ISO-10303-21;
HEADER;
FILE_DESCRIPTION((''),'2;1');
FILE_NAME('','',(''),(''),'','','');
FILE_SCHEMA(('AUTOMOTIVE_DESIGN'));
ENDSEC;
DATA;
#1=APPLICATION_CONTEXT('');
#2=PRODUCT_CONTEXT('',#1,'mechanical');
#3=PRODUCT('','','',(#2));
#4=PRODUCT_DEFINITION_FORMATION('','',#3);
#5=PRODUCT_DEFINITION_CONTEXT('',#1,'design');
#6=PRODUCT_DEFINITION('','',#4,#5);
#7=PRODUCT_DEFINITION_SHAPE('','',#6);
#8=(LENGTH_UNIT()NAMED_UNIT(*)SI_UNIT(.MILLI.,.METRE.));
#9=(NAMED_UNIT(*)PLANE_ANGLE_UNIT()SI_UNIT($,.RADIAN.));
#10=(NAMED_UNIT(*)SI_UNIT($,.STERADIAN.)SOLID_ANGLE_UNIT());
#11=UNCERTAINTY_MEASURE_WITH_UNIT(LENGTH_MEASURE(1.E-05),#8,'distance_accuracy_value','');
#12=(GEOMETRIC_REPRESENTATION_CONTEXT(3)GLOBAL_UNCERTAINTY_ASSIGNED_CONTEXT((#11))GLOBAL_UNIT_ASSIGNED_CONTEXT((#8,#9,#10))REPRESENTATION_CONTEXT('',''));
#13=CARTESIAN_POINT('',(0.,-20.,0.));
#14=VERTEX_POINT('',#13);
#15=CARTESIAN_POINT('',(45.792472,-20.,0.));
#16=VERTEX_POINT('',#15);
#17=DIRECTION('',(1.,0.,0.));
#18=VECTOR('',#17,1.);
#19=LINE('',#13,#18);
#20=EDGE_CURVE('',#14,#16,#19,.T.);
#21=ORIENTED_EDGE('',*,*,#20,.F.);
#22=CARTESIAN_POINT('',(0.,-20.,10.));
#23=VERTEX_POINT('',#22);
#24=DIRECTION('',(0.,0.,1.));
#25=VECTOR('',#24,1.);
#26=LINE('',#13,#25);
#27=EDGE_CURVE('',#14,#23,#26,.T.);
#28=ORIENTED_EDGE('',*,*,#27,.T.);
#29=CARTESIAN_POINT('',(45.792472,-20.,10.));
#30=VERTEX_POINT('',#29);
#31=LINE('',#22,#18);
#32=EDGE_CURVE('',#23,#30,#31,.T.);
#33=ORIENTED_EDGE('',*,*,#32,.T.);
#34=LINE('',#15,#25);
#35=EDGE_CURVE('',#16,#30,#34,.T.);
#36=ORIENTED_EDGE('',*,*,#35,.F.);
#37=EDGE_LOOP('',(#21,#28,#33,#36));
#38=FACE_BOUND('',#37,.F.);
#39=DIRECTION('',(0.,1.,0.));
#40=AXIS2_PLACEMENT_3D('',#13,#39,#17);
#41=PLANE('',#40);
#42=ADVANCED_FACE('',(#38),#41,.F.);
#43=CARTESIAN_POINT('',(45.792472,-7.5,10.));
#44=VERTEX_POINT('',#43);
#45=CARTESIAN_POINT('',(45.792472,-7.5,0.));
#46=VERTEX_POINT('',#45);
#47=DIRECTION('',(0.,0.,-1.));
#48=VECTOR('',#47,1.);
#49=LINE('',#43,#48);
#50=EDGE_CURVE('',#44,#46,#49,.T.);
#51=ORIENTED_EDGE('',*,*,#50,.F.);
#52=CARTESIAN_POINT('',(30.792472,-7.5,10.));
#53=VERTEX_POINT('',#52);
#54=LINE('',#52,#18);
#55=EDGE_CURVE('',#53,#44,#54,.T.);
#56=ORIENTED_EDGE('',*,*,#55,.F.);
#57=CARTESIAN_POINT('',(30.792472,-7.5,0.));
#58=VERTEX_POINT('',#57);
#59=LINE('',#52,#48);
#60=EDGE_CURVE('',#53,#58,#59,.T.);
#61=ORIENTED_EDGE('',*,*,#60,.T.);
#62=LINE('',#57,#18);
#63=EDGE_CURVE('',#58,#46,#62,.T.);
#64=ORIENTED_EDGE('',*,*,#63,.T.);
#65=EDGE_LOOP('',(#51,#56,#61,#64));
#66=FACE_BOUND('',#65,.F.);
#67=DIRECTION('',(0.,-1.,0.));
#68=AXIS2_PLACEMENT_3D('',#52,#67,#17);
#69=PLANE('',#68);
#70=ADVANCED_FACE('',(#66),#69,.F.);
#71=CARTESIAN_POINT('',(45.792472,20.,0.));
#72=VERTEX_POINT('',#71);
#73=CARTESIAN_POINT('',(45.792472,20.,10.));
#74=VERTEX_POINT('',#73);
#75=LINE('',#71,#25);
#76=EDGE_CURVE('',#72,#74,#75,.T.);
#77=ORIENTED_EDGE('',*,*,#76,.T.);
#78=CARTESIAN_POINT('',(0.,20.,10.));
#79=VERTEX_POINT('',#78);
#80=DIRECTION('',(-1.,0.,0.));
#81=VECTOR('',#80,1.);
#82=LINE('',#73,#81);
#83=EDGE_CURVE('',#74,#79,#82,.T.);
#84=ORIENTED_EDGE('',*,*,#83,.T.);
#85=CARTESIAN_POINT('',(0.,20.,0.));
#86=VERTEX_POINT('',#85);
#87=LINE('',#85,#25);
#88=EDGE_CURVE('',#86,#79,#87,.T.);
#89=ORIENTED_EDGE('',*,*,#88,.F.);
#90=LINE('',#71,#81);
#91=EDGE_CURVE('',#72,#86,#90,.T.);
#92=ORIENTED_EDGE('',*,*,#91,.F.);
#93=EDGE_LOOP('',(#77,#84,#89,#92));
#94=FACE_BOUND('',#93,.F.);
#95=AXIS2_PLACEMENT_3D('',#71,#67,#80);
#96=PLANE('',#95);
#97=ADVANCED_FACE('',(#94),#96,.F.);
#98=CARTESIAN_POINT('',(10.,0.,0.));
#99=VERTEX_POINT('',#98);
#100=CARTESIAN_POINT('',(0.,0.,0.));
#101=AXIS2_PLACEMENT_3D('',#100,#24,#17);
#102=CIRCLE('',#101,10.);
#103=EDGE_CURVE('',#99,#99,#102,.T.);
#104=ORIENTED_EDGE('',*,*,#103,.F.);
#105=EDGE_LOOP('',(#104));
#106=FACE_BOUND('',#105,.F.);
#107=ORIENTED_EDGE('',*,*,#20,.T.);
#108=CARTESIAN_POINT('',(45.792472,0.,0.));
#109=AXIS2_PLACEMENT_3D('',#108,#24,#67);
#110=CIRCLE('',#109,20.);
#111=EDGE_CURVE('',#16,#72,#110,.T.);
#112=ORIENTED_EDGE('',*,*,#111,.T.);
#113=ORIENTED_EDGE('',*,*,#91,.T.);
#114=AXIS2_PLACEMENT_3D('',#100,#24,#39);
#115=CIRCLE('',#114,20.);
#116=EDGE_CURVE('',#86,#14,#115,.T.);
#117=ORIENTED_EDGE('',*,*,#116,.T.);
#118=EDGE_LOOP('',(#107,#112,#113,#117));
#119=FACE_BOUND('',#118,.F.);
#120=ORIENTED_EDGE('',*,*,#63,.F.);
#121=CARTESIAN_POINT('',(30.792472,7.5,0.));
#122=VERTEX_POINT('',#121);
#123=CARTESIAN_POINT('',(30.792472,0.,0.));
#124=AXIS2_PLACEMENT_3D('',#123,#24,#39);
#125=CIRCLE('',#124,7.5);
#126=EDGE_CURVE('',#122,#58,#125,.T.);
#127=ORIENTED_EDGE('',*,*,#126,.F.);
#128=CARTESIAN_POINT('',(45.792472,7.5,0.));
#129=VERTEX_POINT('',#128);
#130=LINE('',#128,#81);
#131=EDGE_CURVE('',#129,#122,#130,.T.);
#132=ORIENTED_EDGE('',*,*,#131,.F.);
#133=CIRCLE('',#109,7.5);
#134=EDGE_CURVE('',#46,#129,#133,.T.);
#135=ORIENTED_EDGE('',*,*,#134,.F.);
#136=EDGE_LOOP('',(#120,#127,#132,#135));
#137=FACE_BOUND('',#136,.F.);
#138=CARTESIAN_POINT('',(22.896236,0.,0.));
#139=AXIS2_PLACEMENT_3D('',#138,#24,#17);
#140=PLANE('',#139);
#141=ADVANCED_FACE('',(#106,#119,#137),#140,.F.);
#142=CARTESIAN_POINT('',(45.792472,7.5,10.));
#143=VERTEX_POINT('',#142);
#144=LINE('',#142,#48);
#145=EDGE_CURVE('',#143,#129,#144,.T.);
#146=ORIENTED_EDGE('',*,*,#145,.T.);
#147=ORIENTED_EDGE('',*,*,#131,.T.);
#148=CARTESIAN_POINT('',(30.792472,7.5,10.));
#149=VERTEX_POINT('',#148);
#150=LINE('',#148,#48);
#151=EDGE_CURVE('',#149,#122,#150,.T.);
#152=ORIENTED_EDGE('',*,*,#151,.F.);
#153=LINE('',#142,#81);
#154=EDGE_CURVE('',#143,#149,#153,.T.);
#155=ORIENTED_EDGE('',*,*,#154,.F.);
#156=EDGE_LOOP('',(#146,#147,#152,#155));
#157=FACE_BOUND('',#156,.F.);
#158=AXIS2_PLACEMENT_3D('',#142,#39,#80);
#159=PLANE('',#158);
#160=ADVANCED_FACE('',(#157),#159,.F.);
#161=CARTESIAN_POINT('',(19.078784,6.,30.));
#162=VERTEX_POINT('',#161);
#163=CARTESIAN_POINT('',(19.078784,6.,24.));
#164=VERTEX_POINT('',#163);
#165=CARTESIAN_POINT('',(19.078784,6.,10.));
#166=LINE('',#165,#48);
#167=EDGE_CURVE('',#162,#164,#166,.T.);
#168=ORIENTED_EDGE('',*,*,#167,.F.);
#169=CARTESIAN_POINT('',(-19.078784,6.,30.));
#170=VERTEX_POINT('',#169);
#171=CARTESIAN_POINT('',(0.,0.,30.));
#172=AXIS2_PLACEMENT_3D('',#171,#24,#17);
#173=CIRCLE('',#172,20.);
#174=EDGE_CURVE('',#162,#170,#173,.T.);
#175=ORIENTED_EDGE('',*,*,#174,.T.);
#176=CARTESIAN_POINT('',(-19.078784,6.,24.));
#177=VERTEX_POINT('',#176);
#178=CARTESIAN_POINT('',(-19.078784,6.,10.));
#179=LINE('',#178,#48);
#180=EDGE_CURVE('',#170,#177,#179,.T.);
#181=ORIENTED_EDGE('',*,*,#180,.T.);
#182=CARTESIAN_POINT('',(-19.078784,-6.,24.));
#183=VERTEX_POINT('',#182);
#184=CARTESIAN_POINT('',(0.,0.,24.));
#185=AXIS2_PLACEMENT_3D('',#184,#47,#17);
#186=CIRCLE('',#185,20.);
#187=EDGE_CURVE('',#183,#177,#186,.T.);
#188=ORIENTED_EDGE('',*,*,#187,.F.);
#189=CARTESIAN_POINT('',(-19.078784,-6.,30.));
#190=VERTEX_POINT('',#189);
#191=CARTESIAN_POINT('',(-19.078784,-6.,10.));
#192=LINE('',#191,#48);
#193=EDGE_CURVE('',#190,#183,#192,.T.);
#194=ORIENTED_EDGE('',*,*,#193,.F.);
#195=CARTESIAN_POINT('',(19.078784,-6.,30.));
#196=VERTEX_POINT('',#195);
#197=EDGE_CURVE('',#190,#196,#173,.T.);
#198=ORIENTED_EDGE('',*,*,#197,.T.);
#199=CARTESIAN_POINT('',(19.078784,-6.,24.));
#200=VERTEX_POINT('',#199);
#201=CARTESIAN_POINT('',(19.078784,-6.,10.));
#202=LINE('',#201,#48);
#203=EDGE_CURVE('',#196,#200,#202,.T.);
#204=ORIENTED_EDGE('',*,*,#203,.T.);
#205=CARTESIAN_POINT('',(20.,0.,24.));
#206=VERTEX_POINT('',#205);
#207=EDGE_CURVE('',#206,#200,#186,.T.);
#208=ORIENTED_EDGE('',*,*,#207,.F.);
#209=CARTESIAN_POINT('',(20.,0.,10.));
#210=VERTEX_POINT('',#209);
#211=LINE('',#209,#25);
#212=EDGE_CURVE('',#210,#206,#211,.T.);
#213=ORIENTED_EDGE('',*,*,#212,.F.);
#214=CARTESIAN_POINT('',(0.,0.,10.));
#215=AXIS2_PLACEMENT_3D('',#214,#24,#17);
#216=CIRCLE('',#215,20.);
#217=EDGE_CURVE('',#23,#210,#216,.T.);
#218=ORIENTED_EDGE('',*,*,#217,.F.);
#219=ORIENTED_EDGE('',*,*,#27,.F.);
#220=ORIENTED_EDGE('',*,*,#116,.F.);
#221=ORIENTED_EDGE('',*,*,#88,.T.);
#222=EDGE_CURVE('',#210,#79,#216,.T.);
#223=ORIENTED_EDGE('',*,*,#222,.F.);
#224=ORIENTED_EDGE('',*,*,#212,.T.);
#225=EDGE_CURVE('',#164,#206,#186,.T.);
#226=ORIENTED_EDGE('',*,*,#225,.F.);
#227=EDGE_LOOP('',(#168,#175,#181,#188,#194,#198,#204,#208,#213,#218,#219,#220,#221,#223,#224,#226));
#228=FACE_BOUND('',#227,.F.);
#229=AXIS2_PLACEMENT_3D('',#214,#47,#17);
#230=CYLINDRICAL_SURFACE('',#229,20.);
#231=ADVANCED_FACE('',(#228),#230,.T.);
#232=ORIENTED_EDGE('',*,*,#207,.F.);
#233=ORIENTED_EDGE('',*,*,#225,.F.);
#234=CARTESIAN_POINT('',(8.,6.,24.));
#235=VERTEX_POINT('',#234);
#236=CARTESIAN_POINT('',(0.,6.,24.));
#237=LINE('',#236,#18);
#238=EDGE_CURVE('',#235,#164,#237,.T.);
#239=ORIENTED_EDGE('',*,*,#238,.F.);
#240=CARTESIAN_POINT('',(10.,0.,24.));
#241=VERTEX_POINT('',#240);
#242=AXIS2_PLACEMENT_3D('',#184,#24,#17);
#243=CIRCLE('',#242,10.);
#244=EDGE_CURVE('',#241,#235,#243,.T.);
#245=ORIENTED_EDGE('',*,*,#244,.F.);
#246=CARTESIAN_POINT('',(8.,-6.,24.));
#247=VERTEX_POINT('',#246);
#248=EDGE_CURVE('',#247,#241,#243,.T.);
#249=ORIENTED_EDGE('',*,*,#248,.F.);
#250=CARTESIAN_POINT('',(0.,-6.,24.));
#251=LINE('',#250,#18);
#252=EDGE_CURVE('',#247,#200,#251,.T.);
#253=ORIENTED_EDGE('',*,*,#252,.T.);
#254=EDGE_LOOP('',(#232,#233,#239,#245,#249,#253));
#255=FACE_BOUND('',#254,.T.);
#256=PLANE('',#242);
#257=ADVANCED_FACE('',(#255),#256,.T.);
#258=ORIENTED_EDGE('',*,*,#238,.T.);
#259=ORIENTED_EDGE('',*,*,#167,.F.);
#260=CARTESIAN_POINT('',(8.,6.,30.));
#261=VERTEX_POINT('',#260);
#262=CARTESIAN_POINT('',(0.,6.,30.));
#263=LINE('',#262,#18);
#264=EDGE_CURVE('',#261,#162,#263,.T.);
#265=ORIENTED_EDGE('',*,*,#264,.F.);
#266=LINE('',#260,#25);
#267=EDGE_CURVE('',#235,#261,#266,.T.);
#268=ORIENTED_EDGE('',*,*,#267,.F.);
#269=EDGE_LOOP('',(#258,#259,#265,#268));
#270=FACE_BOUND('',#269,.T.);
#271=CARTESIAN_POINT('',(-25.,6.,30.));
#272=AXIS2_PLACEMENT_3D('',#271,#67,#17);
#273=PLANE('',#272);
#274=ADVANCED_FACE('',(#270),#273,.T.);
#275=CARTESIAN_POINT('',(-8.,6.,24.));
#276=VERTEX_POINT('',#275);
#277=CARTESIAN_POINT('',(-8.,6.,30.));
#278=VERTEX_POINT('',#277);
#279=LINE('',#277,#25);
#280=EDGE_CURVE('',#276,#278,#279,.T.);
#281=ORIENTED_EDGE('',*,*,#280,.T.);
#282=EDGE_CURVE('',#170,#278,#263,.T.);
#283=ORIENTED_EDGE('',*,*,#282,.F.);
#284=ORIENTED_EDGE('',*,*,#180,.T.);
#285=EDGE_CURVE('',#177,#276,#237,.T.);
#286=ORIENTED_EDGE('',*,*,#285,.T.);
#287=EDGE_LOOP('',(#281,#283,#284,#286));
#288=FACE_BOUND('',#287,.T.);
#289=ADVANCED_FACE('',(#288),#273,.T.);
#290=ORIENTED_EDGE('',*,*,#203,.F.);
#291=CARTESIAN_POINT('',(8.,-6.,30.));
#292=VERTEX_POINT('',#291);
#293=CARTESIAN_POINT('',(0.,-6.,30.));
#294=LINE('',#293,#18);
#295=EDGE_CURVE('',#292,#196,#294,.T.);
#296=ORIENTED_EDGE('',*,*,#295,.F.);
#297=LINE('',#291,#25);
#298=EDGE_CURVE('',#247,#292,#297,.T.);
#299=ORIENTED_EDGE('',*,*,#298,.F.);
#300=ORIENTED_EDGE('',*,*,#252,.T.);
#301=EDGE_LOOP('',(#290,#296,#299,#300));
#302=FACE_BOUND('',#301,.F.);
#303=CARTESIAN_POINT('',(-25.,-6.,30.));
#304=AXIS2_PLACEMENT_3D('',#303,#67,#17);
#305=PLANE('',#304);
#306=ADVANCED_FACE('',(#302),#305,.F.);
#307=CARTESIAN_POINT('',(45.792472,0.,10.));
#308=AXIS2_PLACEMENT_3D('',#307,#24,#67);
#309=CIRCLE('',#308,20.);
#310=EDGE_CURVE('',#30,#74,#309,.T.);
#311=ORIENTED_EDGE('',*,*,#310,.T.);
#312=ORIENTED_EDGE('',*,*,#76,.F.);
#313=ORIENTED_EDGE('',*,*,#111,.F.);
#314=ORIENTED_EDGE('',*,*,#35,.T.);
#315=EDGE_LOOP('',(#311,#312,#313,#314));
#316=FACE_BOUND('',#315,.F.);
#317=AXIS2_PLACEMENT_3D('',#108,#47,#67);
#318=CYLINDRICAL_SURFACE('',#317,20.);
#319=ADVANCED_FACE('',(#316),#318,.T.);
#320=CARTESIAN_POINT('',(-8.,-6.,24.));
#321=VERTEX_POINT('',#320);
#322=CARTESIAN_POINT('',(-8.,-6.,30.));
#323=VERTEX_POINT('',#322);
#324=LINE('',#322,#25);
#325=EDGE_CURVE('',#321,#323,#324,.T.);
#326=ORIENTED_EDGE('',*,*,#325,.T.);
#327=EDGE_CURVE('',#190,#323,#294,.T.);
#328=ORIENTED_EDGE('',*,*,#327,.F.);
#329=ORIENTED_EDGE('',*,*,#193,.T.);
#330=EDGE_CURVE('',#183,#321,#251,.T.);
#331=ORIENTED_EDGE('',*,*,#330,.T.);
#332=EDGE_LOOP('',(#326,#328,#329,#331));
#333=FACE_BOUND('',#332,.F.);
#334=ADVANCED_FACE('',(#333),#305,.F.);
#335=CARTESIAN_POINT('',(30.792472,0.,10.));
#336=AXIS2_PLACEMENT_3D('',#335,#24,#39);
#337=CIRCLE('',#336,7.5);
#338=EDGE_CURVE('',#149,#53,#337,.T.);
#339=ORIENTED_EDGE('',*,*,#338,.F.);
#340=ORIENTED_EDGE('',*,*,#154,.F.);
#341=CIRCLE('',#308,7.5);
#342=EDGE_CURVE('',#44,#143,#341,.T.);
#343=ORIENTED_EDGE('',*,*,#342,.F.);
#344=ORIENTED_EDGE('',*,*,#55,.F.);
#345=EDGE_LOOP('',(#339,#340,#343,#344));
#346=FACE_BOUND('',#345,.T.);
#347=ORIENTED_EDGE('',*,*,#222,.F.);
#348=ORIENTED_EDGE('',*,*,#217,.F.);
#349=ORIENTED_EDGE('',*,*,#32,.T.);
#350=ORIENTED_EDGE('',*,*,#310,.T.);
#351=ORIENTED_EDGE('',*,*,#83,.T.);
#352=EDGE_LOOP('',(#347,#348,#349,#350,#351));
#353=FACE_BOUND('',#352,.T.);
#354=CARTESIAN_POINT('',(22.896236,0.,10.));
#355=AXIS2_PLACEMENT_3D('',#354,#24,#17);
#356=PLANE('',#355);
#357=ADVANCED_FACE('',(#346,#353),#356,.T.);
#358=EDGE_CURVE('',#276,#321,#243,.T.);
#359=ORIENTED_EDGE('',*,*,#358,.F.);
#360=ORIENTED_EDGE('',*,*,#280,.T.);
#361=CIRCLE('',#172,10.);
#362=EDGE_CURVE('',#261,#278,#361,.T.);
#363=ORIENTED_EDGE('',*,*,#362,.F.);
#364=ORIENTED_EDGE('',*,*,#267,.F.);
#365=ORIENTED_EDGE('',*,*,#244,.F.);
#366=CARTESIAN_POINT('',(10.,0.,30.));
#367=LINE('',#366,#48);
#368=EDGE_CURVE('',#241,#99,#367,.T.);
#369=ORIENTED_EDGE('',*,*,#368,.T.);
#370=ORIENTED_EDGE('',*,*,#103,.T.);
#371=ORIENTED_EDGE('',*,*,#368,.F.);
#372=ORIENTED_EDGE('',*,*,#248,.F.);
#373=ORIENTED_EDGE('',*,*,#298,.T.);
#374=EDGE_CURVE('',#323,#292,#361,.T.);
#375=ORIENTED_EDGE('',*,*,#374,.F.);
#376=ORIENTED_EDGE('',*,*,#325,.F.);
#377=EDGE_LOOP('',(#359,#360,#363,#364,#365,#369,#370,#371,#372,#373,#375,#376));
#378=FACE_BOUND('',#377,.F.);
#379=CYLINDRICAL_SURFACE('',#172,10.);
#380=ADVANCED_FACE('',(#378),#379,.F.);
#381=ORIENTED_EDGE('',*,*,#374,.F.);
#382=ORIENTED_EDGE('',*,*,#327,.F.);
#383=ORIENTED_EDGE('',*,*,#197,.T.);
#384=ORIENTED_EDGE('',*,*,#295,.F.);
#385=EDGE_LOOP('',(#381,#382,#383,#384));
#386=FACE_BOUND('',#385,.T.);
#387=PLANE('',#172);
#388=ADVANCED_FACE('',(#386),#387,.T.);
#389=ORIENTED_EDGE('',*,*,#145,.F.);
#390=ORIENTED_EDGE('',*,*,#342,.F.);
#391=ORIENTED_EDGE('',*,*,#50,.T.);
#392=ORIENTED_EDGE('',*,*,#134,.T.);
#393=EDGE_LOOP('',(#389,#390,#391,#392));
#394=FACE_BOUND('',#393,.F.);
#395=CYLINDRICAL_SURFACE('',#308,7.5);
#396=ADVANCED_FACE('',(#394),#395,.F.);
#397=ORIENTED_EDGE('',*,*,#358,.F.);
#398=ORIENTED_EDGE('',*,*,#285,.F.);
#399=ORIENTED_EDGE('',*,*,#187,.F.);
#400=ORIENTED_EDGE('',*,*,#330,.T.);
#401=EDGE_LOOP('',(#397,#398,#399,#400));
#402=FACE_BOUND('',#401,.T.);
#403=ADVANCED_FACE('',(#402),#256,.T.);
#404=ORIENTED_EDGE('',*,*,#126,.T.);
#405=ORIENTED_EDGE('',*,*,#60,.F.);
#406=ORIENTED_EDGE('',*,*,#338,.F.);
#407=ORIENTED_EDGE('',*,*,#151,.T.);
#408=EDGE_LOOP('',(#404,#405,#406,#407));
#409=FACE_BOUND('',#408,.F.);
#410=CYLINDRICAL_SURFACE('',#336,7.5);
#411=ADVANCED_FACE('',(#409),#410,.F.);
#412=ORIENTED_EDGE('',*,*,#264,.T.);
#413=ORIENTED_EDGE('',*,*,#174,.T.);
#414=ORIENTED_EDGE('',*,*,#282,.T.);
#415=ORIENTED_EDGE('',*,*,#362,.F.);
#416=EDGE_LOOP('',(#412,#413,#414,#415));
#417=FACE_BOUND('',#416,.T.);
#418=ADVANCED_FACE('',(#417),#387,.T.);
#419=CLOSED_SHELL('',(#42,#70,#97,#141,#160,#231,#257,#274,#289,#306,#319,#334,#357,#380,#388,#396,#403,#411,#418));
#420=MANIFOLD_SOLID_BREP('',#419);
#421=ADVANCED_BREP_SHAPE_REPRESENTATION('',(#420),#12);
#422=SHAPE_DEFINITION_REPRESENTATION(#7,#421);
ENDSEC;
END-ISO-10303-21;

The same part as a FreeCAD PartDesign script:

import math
import FreeCAD as App
import Part
import Sketcher
from FreeCAD import Vector


def add_polygon(sketch, points):
    """Adds a closed chain of lines whose ends are joined by coincident constraints."""
    first, n = sketch.GeometryCount, len(points)
    for a, b in zip(points, points[1:] + points[:1]):
        sketch.addGeometry(Part.LineSegment(App.Vector(*a, 0), App.Vector(*b, 0)), False)
    for i in range(n):
        sketch.addConstraint(Sketcher.Constraint("Coincident", first + i, 2, first + (i + 1) % n, 1))

doc = App.newDocument("Part")
body = doc.addObject("PartDesign::Body", "Body")

# Sketch on XY plane
sketch1 = body.newObject("Sketcher::SketchObject", "Sketch")
sketch1.AttachmentSupport = (doc.getObject("XY_Plane"), [""])
sketch1.MapMode = "FlatFace"
sketch1.addGeometry([
    Part.LineSegment(Vector(46, 20, 0), Vector(0, 20, 0)),
    Part.ArcOfCircle(Part.Circle(Vector(0, 0, 0), Vector(0, 0, 1), 20), math.radians(90), math.radians(270)),
    Part.LineSegment(Vector(0, -20, 0), Vector(46, -20, 0)),
    Part.ArcOfCircle(Part.Circle(Vector(46, 0, 0), Vector(0, 0, 1), 20), math.radians(-90), math.radians(90)),
], False)
sketch1.addConstraint([
    Sketcher.Constraint("Tangent", 0, 2, 1, 1),
    Sketcher.Constraint("Tangent", 1, 2, 2, 1),
    Sketcher.Constraint("Tangent", 2, 2, 3, 1),
    Sketcher.Constraint("Tangent", 3, 2, 0, 1),
    Sketcher.Constraint("Horizontal", 0),
    Sketcher.Constraint("Horizontal", 2),
    Sketcher.Constraint("Coincident", 1, 3, -1, 1),
    Sketcher.Constraint("Radius", 1, 20.0),
    Sketcher.Constraint("DistanceX", 0, 2, 0, 1, 45.792472),
])
pad1 = body.newObject("PartDesign::Pad", "Pad")
pad1.Profile = sketch1
pad1.Length = 10

# Sketch on XY plane
sketch2 = body.newObject("Sketcher::SketchObject", "Sketch001")
sketch2.AttachmentSupport = (doc.getObject("XY_Plane"), [""])
sketch2.MapMode = "FlatFace"
sketch2.AttachmentOffset = App.Placement(Vector(0, 0, 10), App.Rotation())
sketch2.addGeometry(Part.Circle(Vector(0, 0, 0), Vector(0, 0, 1), 20), False)
sketch2.addConstraint([
    Sketcher.Constraint("Coincident", 0, 3, -1, 1),
    Sketcher.Constraint("Diameter", 0, 40.0),
])
pad2 = body.newObject("PartDesign::Pad", "Pad001")
pad2.Profile = sketch2
pad2.Length = 20

# Sketch on XY plane
sketch3 = body.newObject("Sketcher::SketchObject", "Sketch002")
sketch3.AttachmentSupport = (doc.getObject("XY_Plane"), [""])
sketch3.MapMode = "FlatFace"
sketch3.AttachmentOffset = App.Placement(Vector(0, 0, 30), App.Rotation())
sketch3.addGeometry(Part.Circle(Vector(0, 0, 0), Vector(0, 0, 1), 10), False)
sketch3.addConstraint([
    Sketcher.Constraint("Coincident", 0, 3, -1, 1),
    Sketcher.Constraint("Diameter", 0, 20.0),
])
pocket1 = body.newObject("PartDesign::Pocket", "Pocket")
pocket1.Profile = sketch3
pocket1.Length = 58.8

# Sketch on XY plane
sketch4 = body.newObject("Sketcher::SketchObject", "Sketch003")
sketch4.AttachmentSupport = (doc.getObject("XY_Plane"), [""])
sketch4.MapMode = "FlatFace"
sketch4.AttachmentOffset = App.Placement(Vector(0, 0, 30), App.Rotation())
add_polygon(sketch4, [(-25, 6), (-25, -6), (25, -6), (25, 6)])  # lines 0-3
sketch4.addConstraint([
    Sketcher.Constraint("Vertical", 0),
    Sketcher.Constraint("Horizontal", 1),
    Sketcher.Constraint("Vertical", 2),
    Sketcher.Constraint("Horizontal", 3),
    Sketcher.Constraint("Symmetric", 0, 2, 2, 2, -1, 1),
    Sketcher.Constraint("DistanceX", 1, 1, 1, 2, 50.0),
    Sketcher.Constraint("DistanceY", 0, 2, 0, 1, 12.0),
])
pocket2 = body.newObject("PartDesign::Pocket", "Pocket001")
pocket2.Profile = sketch4
pocket2.Length = 6

# Sketch on XY plane
sketch5 = body.newObject("Sketcher::SketchObject", "Sketch004")
sketch5.AttachmentSupport = (doc.getObject("XY_Plane"), [""])
sketch5.MapMode = "FlatFace"
sketch5.AttachmentOffset = App.Placement(Vector(0, 0, 10), App.Rotation())
sketch5.addGeometry([
    Part.LineSegment(Vector(46, 8, 0), Vector(31, 8, 0)),
    Part.ArcOfCircle(Part.Circle(Vector(31, 0, 0), Vector(0, 0, 1), 8), math.radians(90), math.radians(270)),
    Part.LineSegment(Vector(31, -8, 0), Vector(46, -8, 0)),
    Part.ArcOfCircle(Part.Circle(Vector(46, 0, 0), Vector(0, 0, 1), 8), math.radians(-90), math.radians(90)),
], False)
sketch5.addConstraint([
    Sketcher.Constraint("Tangent", 0, 2, 1, 1),
    Sketcher.Constraint("Tangent", 1, 2, 2, 1),
    Sketcher.Constraint("Tangent", 2, 2, 3, 1),
    Sketcher.Constraint("Tangent", 3, 2, 0, 1),
    Sketcher.Constraint("Horizontal", 0),
    Sketcher.Constraint("Horizontal", 2),
    Sketcher.Constraint("PointOnObject", 1, 3, -1),
    Sketcher.Constraint("Radius", 1, 7.5),
    Sketcher.Constraint("DistanceX", 0, 2, 0, 1, 15.0),
    Sketcher.Constraint("DistanceX", -1, 1, 1, 3, 30.792472),
])
pocket3 = body.newObject("PartDesign::Pocket", "Pocket002")
pocket3.Profile = sketch5
pocket3.Length = 10

doc.recompute()
